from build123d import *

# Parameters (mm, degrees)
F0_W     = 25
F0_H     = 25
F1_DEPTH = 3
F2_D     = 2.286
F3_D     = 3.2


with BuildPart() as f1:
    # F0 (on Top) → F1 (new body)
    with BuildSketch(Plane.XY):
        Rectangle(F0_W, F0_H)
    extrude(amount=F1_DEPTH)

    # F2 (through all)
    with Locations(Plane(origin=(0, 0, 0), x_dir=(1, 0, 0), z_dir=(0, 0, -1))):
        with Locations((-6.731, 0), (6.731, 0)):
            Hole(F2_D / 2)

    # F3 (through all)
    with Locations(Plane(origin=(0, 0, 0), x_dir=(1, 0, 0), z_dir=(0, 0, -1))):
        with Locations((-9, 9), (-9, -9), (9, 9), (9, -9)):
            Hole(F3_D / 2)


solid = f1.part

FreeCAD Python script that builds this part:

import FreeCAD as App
import Part
import Sketcher
from FreeCAD import Vector

doc = App.newDocument("Part")
body = doc.addObject("PartDesign::Body", "Body")

sketch1 = doc.addObject("Sketcher::SketchObject", "Sketch")
body.addObject(sketch1)
sketch1.AttachmentSupport = (doc.XY_Plane, [""])
sketch1.MapMode = "FlatFace"
sketch1.addGeometry([
    Part.LineSegment(Vector(-12, 12, 0), Vector(-12, -12, 0)),
    Part.LineSegment(Vector(-12, -12, 0), Vector(12, -12, 0)),
    Part.LineSegment(Vector(12, -12, 0), Vector(12, 12, 0)),
    Part.LineSegment(Vector(12, 12, 0), Vector(-12, 12, 0)),
], False)
sketch1.addConstraint([
    Sketcher.Constraint("Coincident", 0, 2, 1, 1),
    Sketcher.Constraint("Coincident", 1, 2, 2, 1),
    Sketcher.Constraint("Coincident", 2, 2, 3, 1),
    Sketcher.Constraint("Coincident", 3, 2, 0, 1),
    Sketcher.Constraint("Vertical", 0),
    Sketcher.Constraint("Horizontal", 1),
    Sketcher.Constraint("Vertical", 2),
    Sketcher.Constraint("Horizontal", 3),
    Sketcher.Constraint("Symmetric", 0, 2, 2, 2, -1, 1),
    Sketcher.Constraint("Equal", 3, 0),
    Sketcher.Constraint("DistanceX", 1, 1, 1, 2, 25.0),
])
pad1 = doc.addObject("PartDesign::Pad", "Pad")
body.addObject(pad1)
pad1.Profile = sketch1
pad1.Length = 3

sketch2 = doc.addObject("Sketcher::SketchObject", "Sketch001")
body.addObject(sketch2)
sketch2.AttachmentSupport = (doc.XY_Plane, [""])
sketch2.MapMode = "FlatFace"
sketch2.addGeometry([
    Part.Circle(Vector(-6.7, 0, 0), Vector(0, 0, 1), 1.1),
    Part.Circle(Vector(6.7, 0, 0), Vector(0, 0, 1), 1.1),
], False)
sketch2.addConstraint([
    Sketcher.Constraint("Equal", 0, 1),
    Sketcher.Constraint("Symmetric", 0, 3, 1, 3, -1, 1),
    Sketcher.Constraint("PointOnObject", 0, 3, -1),
    Sketcher.Constraint("Diameter", 0, 2.286),
    Sketcher.Constraint("DistanceX", 0, 3, -1, 1, 6.731),
])
doc.recompute()
hole = doc.addObject("PartDesign::Hole", "Hole")
body.addObject(hole)
hole.Profile = sketch2
hole.ThreadType = "None"
hole.Diameter = 2.286
hole.DepthType = "ThroughAll"
hole.Reversed = True

sketch3 = doc.addObject("Sketcher::SketchObject", "Sketch002")
body.addObject(sketch3)
sketch3.AttachmentSupport = (doc.XY_Plane, [""])
sketch3.MapMode = "FlatFace"
sketch3.addGeometry([
    Part.Circle(Vector(-9, -9, 0), Vector(0, 0, 1), 1.6),
    Part.Circle(Vector(-9, 9, 0), Vector(0, 0, 1), 1.6),
    Part.Circle(Vector(9, -9, 0), Vector(0, 0, 1), 1.6),
    Part.Circle(Vector(9, 9, 0), Vector(0, 0, 1), 1.6),
], False)
sketch3.addConstraint([
    Sketcher.Constraint("Equal", 0, 1),
    Sketcher.Constraint("Equal", 1, 2),
    Sketcher.Constraint("Equal", 2, 3),
    Sketcher.Constraint("Symmetric", 1, 3, 2, 3, -1, 1),
    Sketcher.Constraint("Symmetric", 0, 3, 3, 3, -1, 1),
    Sketcher.Constraint("Symmetric", 0, 3, 2, 3, -2),
    Sketcher.Constraint("Diameter", 0, 3.2),
    Sketcher.Constraint("DistanceX", 0, 3, -1, 1, 9.0),
    Sketcher.Constraint("DistanceY", 0, 3, -1, 1, 9.0),
])
doc.recompute()
hole2 = doc.addObject("PartDesign::Hole", "Hole001")
body.addObject(hole2)
hole2.Profile = sketch3
hole2.ThreadType = "None"
hole2.Diameter = 3.2
hole2.DepthType = "ThroughAll"
hole2.Reversed = True

doc.recompute()
